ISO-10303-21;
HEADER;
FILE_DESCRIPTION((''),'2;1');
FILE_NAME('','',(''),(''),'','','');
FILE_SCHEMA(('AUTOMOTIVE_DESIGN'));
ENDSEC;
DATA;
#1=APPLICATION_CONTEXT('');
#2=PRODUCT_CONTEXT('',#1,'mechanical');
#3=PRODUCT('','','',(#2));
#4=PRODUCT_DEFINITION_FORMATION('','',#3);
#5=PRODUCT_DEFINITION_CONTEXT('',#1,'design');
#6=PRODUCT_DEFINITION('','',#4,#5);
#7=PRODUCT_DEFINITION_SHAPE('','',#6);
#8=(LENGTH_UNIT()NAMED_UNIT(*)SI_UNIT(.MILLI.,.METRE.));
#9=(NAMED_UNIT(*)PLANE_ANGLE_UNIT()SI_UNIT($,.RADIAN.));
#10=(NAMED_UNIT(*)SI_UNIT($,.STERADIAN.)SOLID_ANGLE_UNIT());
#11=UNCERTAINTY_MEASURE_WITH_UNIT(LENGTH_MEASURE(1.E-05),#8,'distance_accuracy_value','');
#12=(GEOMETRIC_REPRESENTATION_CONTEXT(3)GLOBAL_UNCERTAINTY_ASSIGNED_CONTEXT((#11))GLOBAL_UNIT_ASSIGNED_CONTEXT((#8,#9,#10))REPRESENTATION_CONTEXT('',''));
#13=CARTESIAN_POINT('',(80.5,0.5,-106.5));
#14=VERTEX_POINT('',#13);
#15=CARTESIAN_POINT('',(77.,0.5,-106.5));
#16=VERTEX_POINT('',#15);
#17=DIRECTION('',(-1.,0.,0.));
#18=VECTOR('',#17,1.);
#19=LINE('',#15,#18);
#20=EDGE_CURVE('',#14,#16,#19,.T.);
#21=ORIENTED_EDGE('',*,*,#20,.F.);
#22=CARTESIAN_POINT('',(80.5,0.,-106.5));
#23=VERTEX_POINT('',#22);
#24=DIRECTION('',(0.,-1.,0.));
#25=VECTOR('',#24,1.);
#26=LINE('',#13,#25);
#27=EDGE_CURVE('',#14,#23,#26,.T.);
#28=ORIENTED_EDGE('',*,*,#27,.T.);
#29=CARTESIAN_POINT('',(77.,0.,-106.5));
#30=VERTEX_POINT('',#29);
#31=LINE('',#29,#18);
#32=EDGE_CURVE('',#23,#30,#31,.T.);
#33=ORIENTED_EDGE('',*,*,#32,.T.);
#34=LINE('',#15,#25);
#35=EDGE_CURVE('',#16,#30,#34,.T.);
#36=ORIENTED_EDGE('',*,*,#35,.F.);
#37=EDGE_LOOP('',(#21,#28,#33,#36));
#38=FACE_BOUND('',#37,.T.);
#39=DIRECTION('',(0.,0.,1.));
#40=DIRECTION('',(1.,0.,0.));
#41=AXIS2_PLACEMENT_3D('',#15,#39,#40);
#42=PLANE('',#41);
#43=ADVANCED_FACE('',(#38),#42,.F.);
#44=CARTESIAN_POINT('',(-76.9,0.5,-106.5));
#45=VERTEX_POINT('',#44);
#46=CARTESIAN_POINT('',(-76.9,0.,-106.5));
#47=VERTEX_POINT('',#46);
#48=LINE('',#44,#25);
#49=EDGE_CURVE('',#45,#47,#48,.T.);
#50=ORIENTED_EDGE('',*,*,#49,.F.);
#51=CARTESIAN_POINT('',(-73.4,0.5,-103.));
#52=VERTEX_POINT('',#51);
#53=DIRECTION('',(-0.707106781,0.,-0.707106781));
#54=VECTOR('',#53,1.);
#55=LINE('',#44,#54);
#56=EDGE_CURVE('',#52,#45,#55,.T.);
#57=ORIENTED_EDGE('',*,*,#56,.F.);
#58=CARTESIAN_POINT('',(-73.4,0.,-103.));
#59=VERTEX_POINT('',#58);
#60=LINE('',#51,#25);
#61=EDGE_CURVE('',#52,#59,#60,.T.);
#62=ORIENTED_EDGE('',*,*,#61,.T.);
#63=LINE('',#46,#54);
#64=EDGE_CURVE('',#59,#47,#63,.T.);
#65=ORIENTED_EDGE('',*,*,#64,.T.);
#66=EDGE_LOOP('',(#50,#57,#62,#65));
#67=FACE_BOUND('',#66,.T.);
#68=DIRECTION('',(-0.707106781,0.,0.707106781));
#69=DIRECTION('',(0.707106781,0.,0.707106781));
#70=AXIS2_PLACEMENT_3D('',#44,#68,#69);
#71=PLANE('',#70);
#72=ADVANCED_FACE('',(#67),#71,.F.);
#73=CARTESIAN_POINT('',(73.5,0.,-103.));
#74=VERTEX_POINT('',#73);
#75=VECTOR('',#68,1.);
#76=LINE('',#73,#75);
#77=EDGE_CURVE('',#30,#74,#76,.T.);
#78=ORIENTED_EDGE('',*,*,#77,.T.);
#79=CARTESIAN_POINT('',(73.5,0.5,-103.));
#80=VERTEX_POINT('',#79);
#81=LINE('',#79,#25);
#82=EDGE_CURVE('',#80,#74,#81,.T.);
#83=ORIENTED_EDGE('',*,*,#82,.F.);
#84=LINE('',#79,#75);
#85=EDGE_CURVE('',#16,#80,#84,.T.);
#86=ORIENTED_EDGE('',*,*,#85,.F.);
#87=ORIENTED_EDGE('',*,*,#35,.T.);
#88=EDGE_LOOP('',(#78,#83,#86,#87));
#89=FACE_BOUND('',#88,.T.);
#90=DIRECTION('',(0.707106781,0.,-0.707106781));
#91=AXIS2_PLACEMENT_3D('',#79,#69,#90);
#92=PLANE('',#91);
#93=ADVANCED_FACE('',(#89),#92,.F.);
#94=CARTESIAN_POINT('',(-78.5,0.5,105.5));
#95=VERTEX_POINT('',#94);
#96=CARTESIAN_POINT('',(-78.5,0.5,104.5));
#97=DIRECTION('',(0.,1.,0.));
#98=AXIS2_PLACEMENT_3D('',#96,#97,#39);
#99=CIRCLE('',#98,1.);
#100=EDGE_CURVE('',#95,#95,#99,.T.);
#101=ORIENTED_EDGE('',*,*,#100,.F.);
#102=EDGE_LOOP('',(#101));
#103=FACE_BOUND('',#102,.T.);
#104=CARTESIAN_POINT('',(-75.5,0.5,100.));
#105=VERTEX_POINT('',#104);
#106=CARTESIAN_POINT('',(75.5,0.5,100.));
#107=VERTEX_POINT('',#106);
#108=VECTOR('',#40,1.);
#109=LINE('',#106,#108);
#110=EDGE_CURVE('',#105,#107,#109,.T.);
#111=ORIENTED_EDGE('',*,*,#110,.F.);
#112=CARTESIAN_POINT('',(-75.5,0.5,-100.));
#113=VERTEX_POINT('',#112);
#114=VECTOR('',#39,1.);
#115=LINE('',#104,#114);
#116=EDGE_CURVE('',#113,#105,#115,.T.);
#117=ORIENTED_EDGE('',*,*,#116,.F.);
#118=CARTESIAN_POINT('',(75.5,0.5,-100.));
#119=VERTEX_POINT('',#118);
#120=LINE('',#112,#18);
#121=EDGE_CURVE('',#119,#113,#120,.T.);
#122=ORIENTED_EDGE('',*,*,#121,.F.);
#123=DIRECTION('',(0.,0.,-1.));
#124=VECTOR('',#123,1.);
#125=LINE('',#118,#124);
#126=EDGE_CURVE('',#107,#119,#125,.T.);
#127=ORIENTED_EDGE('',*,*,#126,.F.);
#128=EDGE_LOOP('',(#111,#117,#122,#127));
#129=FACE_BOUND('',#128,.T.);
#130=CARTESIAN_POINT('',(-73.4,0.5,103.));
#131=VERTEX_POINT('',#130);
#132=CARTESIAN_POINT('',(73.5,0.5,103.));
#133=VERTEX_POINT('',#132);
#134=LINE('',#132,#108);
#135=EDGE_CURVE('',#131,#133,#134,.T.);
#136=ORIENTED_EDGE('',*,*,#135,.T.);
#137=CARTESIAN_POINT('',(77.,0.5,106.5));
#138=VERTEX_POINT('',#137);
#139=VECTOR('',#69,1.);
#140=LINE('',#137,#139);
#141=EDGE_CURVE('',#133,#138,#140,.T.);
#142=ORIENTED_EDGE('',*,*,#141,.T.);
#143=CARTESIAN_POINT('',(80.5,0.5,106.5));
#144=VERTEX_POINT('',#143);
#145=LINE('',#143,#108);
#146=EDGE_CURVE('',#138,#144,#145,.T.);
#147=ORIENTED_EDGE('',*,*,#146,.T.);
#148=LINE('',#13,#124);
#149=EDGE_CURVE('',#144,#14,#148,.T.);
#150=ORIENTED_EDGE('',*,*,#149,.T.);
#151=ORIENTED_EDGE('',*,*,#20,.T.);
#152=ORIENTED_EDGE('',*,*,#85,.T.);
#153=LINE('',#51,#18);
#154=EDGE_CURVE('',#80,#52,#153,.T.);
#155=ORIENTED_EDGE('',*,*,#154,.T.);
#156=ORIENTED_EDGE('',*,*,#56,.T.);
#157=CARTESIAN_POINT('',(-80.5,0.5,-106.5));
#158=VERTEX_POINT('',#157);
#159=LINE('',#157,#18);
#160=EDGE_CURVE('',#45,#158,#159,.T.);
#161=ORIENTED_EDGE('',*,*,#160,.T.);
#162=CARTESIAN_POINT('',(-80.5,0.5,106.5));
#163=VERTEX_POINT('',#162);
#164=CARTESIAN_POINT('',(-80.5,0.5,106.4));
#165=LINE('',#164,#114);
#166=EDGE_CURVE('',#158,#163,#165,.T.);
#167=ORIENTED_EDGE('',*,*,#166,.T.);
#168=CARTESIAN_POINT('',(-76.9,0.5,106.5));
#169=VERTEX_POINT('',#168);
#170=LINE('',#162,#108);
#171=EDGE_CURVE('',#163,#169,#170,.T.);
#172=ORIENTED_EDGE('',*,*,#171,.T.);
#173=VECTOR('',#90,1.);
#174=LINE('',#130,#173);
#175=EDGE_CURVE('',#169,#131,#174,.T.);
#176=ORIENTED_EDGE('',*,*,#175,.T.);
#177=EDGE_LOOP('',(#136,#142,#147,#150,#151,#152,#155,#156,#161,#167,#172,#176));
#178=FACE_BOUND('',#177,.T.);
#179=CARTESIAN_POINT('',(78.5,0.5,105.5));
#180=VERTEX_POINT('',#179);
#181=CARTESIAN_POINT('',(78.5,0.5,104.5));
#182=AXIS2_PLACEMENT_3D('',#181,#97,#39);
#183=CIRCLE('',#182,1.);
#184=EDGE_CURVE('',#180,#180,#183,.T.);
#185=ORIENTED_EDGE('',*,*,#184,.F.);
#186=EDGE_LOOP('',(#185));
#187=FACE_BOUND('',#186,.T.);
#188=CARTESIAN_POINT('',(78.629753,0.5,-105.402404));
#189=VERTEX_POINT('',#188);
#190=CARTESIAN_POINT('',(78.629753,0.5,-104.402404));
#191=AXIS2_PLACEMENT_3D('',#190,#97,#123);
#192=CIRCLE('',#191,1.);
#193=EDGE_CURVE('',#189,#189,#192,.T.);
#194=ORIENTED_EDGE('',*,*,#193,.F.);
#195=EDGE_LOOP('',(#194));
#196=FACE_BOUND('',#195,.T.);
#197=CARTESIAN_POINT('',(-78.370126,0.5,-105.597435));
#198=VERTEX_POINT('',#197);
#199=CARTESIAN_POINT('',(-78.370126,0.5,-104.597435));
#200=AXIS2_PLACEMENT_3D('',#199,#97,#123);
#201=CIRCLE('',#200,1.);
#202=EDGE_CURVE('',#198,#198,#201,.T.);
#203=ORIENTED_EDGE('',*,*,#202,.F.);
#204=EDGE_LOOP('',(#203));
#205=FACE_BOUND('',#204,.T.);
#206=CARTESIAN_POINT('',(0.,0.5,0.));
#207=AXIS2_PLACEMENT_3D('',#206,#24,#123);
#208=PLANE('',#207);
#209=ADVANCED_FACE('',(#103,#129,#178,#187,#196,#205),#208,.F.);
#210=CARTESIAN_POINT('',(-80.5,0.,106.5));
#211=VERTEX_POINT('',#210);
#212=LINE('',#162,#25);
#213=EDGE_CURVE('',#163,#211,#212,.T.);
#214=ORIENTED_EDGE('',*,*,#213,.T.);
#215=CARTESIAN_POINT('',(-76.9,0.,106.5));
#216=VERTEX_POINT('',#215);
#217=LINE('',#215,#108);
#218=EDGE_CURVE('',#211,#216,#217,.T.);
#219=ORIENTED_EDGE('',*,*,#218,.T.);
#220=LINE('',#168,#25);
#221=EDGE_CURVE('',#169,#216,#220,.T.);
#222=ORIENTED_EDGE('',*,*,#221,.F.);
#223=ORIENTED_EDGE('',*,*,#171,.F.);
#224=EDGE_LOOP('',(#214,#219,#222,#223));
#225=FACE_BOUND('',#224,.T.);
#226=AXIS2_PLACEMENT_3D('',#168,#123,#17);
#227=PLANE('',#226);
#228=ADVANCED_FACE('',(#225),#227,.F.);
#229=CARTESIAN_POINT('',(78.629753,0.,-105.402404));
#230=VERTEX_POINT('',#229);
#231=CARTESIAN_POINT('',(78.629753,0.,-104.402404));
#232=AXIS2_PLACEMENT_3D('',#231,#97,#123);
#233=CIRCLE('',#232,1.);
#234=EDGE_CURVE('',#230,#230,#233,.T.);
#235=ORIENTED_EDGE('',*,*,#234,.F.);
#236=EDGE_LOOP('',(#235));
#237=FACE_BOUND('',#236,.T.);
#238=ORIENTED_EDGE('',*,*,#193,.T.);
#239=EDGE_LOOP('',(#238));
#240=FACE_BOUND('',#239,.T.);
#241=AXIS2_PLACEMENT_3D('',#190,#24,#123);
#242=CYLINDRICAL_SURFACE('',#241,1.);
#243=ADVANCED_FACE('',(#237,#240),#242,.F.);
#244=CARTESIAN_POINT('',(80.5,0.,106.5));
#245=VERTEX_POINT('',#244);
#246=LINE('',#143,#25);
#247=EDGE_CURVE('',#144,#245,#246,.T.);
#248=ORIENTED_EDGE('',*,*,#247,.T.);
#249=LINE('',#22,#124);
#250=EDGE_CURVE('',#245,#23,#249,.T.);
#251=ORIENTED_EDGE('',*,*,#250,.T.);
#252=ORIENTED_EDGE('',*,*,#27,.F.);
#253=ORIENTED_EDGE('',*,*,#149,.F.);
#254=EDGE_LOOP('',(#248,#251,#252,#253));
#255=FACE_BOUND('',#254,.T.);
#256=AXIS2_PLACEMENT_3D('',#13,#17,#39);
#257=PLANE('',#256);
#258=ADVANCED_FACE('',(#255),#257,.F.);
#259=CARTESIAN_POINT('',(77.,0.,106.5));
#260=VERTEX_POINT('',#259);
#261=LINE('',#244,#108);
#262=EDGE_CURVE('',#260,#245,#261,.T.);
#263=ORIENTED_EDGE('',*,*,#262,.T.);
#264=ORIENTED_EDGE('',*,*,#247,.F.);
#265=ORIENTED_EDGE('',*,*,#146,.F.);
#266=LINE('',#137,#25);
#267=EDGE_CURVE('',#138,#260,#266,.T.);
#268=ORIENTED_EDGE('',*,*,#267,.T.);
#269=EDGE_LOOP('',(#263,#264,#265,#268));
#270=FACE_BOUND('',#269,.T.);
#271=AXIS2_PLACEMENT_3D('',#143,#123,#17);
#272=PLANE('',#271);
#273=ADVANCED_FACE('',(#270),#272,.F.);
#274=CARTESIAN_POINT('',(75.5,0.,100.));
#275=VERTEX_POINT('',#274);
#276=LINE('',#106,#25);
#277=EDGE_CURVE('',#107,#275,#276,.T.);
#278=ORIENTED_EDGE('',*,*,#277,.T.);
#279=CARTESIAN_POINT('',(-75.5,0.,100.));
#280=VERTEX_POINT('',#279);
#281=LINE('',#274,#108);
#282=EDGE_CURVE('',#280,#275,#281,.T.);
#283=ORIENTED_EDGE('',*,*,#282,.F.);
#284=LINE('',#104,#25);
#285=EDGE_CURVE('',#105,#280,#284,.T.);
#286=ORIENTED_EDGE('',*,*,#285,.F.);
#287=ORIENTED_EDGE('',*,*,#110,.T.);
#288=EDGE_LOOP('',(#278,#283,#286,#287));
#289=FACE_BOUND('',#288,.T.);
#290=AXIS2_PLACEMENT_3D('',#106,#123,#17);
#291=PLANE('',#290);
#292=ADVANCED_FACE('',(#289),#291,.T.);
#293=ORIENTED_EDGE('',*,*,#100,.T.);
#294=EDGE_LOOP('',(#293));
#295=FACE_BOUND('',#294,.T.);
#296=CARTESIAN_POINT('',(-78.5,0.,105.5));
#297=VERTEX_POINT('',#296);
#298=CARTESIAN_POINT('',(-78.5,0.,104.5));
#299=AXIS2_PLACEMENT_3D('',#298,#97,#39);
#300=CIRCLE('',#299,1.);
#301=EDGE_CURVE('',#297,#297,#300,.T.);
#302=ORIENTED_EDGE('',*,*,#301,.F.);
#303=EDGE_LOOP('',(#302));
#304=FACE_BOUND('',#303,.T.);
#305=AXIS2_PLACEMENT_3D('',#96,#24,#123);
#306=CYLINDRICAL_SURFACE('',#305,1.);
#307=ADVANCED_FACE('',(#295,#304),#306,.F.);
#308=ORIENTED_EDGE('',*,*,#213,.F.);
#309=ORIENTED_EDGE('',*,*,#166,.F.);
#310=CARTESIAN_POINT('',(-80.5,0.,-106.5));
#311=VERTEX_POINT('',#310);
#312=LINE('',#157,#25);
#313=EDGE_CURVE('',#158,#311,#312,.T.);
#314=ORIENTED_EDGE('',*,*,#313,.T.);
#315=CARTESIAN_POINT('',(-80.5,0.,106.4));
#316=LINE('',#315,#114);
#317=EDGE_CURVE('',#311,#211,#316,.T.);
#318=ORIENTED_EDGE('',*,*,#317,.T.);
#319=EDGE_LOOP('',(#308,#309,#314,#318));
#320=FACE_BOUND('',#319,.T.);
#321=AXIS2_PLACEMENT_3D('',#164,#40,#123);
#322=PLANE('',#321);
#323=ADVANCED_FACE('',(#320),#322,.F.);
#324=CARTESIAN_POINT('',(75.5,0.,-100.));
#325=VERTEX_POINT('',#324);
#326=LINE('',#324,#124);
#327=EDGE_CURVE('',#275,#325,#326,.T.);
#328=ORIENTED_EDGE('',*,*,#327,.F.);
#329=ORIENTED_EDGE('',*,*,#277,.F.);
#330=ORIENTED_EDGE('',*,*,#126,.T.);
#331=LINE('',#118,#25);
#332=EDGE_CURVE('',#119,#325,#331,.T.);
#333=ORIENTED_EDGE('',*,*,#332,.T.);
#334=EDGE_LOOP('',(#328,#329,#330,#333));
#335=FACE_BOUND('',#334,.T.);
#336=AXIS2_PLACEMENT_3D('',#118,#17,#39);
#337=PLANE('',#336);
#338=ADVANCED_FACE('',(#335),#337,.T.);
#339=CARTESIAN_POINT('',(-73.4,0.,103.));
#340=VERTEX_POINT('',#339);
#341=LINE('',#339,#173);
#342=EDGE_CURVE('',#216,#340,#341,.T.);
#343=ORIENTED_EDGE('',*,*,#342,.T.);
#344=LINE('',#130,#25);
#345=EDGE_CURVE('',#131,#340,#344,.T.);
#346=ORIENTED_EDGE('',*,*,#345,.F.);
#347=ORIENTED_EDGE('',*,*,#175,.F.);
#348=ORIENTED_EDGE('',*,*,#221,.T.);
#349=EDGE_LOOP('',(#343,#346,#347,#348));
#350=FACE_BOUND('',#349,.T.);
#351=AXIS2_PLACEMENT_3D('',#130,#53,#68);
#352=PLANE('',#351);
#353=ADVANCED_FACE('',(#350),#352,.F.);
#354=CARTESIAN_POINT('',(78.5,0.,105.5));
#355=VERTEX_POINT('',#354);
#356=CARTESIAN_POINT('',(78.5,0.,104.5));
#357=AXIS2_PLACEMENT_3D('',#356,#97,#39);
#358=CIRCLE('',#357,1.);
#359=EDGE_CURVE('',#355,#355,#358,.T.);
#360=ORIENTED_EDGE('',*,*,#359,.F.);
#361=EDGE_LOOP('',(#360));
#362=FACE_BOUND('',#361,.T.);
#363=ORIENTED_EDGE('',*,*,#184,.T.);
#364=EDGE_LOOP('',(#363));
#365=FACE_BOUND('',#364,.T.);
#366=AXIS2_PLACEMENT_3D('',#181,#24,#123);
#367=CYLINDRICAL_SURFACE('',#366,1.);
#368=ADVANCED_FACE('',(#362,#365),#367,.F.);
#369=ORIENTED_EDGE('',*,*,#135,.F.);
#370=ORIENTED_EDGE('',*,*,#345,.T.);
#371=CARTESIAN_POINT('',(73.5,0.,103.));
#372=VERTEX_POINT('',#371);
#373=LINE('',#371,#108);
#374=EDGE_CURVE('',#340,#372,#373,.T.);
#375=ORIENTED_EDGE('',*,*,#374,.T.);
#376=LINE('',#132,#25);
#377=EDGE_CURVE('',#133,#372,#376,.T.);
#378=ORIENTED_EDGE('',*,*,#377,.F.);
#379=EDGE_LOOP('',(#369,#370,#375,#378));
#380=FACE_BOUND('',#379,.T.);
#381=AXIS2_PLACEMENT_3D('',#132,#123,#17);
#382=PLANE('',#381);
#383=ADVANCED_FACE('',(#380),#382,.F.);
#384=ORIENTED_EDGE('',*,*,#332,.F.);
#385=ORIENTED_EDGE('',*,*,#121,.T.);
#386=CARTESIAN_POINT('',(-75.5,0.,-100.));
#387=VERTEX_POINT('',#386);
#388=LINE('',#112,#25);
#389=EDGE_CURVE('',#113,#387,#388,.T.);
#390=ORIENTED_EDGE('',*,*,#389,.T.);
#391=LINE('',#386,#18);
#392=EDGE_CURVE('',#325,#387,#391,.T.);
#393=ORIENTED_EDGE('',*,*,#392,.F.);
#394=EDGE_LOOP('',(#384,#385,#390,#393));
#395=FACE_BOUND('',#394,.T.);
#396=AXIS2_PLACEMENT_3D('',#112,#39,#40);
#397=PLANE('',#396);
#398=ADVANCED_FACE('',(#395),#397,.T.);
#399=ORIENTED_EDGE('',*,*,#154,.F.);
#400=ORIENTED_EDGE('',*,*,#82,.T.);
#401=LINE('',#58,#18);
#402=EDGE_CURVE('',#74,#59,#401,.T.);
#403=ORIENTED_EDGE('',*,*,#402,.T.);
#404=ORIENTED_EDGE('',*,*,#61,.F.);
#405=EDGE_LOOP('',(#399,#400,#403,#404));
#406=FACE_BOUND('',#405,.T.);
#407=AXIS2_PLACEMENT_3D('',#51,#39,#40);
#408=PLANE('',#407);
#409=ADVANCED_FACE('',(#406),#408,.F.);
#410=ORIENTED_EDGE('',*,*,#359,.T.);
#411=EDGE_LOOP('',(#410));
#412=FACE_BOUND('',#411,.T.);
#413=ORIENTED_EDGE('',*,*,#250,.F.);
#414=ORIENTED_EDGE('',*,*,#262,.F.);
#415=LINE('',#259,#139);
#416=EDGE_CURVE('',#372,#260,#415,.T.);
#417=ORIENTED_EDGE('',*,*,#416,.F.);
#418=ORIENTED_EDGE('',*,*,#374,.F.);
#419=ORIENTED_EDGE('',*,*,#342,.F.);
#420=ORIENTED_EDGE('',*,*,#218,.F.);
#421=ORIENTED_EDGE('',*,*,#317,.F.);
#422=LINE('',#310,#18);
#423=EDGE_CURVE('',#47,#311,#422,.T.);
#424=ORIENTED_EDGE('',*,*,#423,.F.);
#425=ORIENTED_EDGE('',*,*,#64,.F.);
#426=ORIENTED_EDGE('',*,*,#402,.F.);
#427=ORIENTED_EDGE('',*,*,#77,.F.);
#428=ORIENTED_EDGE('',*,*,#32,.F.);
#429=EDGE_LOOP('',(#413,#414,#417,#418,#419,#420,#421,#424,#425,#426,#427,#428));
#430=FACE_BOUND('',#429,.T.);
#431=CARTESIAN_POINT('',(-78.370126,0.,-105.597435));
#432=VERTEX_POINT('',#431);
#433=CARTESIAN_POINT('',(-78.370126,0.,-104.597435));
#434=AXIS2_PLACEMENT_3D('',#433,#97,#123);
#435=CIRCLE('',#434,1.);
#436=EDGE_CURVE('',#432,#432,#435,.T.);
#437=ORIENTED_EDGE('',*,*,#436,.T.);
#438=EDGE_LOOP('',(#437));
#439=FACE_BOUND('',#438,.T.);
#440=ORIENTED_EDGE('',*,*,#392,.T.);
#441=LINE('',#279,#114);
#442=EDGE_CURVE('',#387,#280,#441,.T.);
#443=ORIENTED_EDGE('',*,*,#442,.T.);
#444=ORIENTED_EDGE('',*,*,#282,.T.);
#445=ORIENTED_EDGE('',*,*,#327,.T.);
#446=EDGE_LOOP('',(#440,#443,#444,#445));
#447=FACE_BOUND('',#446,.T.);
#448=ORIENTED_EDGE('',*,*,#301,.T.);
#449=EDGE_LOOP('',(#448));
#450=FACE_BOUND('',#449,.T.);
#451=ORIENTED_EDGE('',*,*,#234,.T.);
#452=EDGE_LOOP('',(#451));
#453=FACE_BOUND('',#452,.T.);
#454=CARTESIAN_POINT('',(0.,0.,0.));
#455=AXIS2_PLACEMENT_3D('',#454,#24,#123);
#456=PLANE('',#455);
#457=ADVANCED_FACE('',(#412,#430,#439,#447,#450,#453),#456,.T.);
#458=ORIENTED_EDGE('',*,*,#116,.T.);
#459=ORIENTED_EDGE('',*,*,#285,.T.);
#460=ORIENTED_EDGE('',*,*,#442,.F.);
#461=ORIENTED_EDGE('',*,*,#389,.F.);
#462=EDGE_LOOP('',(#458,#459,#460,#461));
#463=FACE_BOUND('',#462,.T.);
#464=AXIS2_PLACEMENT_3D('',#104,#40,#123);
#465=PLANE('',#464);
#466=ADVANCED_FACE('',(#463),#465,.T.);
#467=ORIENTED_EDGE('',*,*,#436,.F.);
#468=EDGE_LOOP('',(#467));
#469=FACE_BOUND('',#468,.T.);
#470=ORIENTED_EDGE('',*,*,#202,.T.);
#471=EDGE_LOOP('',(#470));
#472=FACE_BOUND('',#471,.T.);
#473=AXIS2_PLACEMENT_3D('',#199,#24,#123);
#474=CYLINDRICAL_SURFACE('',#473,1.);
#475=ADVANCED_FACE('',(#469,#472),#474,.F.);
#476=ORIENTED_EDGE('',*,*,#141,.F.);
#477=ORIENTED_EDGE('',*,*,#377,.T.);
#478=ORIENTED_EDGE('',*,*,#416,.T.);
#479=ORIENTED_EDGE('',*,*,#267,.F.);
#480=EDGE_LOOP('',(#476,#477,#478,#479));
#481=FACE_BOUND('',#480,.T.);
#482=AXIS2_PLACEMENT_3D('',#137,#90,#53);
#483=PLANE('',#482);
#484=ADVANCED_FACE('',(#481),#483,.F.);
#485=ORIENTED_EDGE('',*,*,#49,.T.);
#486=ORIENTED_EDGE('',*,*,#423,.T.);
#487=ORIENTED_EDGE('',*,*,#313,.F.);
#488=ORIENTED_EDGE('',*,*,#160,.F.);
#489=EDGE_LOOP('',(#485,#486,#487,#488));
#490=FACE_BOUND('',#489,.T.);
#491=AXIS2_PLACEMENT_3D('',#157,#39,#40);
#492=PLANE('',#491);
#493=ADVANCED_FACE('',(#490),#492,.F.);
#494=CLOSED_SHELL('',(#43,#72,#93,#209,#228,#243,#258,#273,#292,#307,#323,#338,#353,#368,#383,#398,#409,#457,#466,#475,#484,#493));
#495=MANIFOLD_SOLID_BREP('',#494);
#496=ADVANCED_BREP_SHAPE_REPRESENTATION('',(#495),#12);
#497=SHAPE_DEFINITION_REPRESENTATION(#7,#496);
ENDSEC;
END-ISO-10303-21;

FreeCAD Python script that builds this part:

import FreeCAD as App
import Part
import Sketcher

V = App.Vector
Q = App.Units.Quantity


def add_polygon(sketch, points):
    """Adds a closed chain of lines whose ends are joined by coincident constraints."""
    first, n = sketch.GeometryCount, len(points)
    for a, b in zip(points, points[1:] + points[:1]):
        sketch.addGeometry(Part.LineSegment(App.Vector(*a, 0), App.Vector(*b, 0)), False)
    for i in range(n):
        sketch.addConstraint(Sketcher.Constraint("Coincident", first + i, 2, first + (i + 1) % n, 1))

doc = App.newDocument("Part")
params = doc.addObject("Spreadsheet::Sheet", "Params")
for row, (alias, value) in enumerate([
    ("sketch1_diameter", "2 mm"),
    ("sketch1_width", "151 mm"),
    ("sketch1_height", "213 mm"),
    ("sketch1_height2", "200 mm"),
    ("sketch1_width2", "3.6 mm"),
    ("pad1_length", "0.5 mm"),
], start=1):
    params.set(f"A{row}", alias)
    params.set(f"B{row}", "=" + value)
    params.setAlias(f"B{row}", alias)

body = doc.addObject("PartDesign::Body", "Body")

# Sketch on XZ plane
sketch1 = body.newObject("Sketcher::SketchObject", "Sketch")
sketch1.AttachmentSupport = (doc.getObject("XZ_Plane"), [""])
sketch1.MapMode = "FlatFace"
add_polygon(sketch1, [(-80.5, 106.5), (-76.9, 106.5), (-73.4, 103), (73.5, 103), (77, 106.5), (80.5, 106.5), (80.5, -106.5), (77, -106.5), (73.5, -103), (-73.4, -103), (-76.9, -106.5), (-80.5, -106.5)])  # lines 0-11
sketch1.addGeometry(Part.Circle(V(-78.5, 104.5, 0), V(0, 0, 1), 1), False)  # 12
add_polygon(sketch1, [(75.5, 100), (-75.5, 100), (-75.5, -100), (75.5, -100)])  # lines 13-16
sketch1.addGeometry(Part.Circle(V(78.5, 104.5, 0), V(0, 0, 1), 1), False)  # 17
sketch1.addGeometry(Part.Circle(V(-78.370126, -104.597435, 0), V(0, 0, 1), 1), False)  # 18
sketch1.addGeometry(Part.Circle(V(78.629753, -104.402404, 0), V(0, 0, 1), 1), False)  # 19
sketch1.addConstraint([
    Sketcher.Constraint("Horizontal", 0),
    Sketcher.Constraint("Horizontal", 2),
    Sketcher.Constraint("Horizontal", 4),
    Sketcher.Constraint("Vertical", 5),
    Sketcher.Constraint("Horizontal", 6),
    Sketcher.Constraint("Horizontal", 8),
    Sketcher.Constraint("Horizontal", 10),
    Sketcher.Constraint("Vertical", 11),
    Sketcher.Constraint("Horizontal", 13),
    Sketcher.Constraint("Vertical", 14),
    Sketcher.Constraint("Horizontal", 15),
    Sketcher.Constraint("Vertical", 16),
    Sketcher.Constraint("Equal", 12, 17),
    Sketcher.Constraint("Equal", 17, 18),
    Sketcher.Constraint("Equal", 18, 19),
    Sketcher.Constraint("Symmetric", 4, 2, 10, 2, -1, 1),
    Sketcher.Constraint("Symmetric", 13, 2, 15, 2, -1, 1),
    Sketcher.Constraint("Symmetric", 12, 3, 17, 3, -2),
    Sketcher.Constraint("Symmetric", 3, 2, 6, 2, -1),
    Sketcher.Constraint("Symmetric", 2, 2, 7, 2, -1),
    Sketcher.Constraint("Symmetric", 0, 2, 9, 2, -1),
    Sketcher.Constraint("Perpendicular", 1, 3),
    Sketcher.Constraint("Perpendicular", 3, 7),
    Sketcher.Constraint("Perpendicular", 7, 9),
    Sketcher.Constraint("Diameter", 12, Q("2 mm")),
    Sketcher.Constraint("DistanceX", 13, 2, 13, 1, Q("151 mm")),
    Sketcher.Constraint("DistanceY", 5, 2, 5, 1, Q("213 mm")),
    Sketcher.Constraint("DistanceY", 14, 2, 14, 1, Q("200 mm")),
    Sketcher.Constraint("DistanceX", 0, 1, 0, 2, Q("3.6 mm")),
    Sketcher.Constraint("DistanceX", 2, 1, 2, 2, Q("146.9 mm")),
    Sketcher.Constraint("DistanceX", 4, 1, 4, 2, Q("3.5 mm")),
    Sketcher.Constraint("DistanceY", -1, 1, 1, 2, Q("103 mm")),
    Sketcher.Constraint("DistanceX", 12, 3, 17, 3, Q("157 mm")),
    Sketcher.Constraint("DistanceY", 12, 3, 0, 2, Q("2 mm")),
    Sketcher.Constraint("DistanceX", 18, 3, 19, 3, Q("156.999879 mm")),
    Sketcher.Constraint("DistanceY", 18, 3, 19, 3, Q("0.195031 mm")),
    Sketcher.Constraint("DistanceX", 18, 3, -1, 1, Q("78.370126 mm")),
    Sketcher.Constraint("DistanceY", 18, 3, -1, 1, Q("104.597435 mm")),
])
sketch1.setExpression("Constraints[40]", "Params.sketch1_diameter")
sketch1.setExpression("Constraints[41]", "Params.sketch1_width")
sketch1.setExpression("Constraints[42]", "Params.sketch1_height")
sketch1.setExpression("Constraints[43]", "Params.sketch1_height2")
sketch1.setExpression("Constraints[44]", "Params.sketch1_width2")
pad1 = body.newObject("PartDesign::Pad", "Pad")
pad1.Profile = sketch1
pad1.setExpression("Length", "Params.pad1_length")
pad1.Reversed = True

doc.recompute()
